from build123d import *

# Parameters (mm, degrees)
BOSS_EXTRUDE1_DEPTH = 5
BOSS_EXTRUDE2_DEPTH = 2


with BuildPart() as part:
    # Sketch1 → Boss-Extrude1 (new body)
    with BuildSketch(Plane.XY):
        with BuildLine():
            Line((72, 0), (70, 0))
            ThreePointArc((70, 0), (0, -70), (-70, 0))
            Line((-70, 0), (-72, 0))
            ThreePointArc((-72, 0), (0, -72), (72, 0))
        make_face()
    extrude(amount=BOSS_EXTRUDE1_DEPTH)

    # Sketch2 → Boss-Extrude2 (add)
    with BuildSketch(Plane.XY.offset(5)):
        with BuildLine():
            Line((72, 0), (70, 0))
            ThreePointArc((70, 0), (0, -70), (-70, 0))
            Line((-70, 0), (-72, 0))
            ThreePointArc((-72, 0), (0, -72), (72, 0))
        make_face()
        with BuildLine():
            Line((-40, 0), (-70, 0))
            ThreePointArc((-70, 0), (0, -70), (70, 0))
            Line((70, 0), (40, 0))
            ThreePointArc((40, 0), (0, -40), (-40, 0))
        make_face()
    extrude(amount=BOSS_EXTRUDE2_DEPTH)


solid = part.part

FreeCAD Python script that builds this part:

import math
import FreeCAD as App
import Part
import Sketcher
from FreeCAD import Vector

doc = App.newDocument("Part")
params = doc.addObject("Spreadsheet::Sheet", "Params")
for row, (alias, value) in enumerate([
    ("sketch1_radius", "70 mm"),
    ("sketch1_radius2", "72 mm"),
    ("pad1_length", "5 mm"),
    ("sketch2_radius", "40 mm"),
    ("sketch2_radius2", "72 mm"),
    ("pad2_length", "2 mm"),
], start=1):
    params.set(f"A{row}", alias)
    params.set(f"B{row}", "=" + value)
    params.setAlias(f"B{row}", alias)

body = doc.addObject("PartDesign::Body", "Body")

# Sketch on XY plane
sketch1 = body.newObject("Sketcher::SketchObject", "Sketch")
sketch1.AttachmentSupport = (doc.getObject("XY_Plane"), [""])
sketch1.MapMode = "FlatFace"
sketch1.addGeometry(Part.LineSegment(Vector(72, 0, 0), Vector(70, 0, 0)), False)
sketch1.addGeometry(Part.ArcOfCircle(Part.Circle(Vector(0, 0, 0), Vector(0, 0, 1), 70), math.radians(180), math.radians(360)), False)
sketch1.addGeometry(Part.LineSegment(Vector(-70, 0, 0), Vector(-72, 0, 0)), False)
sketch1.addGeometry(Part.ArcOfCircle(Part.Circle(Vector(0, 0, 0), Vector(0, 0, 1), 72), math.radians(180), math.radians(360)), False)
sketch1.addConstraint(Sketcher.Constraint("Coincident", 0, 2, 1, 2))
sketch1.addConstraint(Sketcher.Constraint("Coincident", 1, 1, 2, 1))
sketch1.addConstraint(Sketcher.Constraint("Coincident", 2, 2, 3, 1))
sketch1.addConstraint(Sketcher.Constraint("Coincident", 3, 2, 0, 1))
sketch1.addConstraint(Sketcher.Constraint("Horizontal", 0))
sketch1.addConstraint(Sketcher.Constraint("Horizontal", 2))
sketch1.addConstraint(Sketcher.Constraint("Coincident", 1, 3, -1, 1))
sketch1.addConstraint(Sketcher.Constraint("Coincident", 3, 3, -1, 1))
sketch1.addConstraint(Sketcher.Constraint("PointOnObject", 0, 2, -1))
sketch1.addConstraint(Sketcher.Constraint("PointOnObject", 1, 1, -1))
sketch1.addConstraint(Sketcher.Constraint("Radius", 1, 70.0))
sketch1.addConstraint(Sketcher.Constraint("Radius", 3, 72.0))
sketch1.setExpression("Constraints[10]", "Params.sketch1_radius")
sketch1.setExpression("Constraints[11]", "Params.sketch1_radius2")
pad1 = body.newObject("PartDesign::Pad", "Pad")
pad1.Profile = sketch1
pad1.setExpression("Length", "Params.pad1_length")

# Sketch on XY plane
sketch2 = body.newObject("Sketcher::SketchObject", "Sketch001")
sketch2.AttachmentSupport = (doc.getObject("XY_Plane"), [""])
sketch2.MapMode = "FlatFace"
sketch2.AttachmentOffset = App.Placement(Vector(0, 0, 5), App.Rotation())
sketch2.addGeometry(Part.LineSegment(Vector(72, 0, 0), Vector(40, 0, 0)), False)
sketch2.addGeometry(Part.ArcOfCircle(Part.Circle(Vector(0, 0, 0), Vector(0, 0, 1), 40), math.radians(180), math.radians(360)), False)
sketch2.addGeometry(Part.LineSegment(Vector(-40, 0, 0), Vector(-72, 0, 0)), False)
sketch2.addGeometry(Part.ArcOfCircle(Part.Circle(Vector(0, 0, 0), Vector(0, 0, 1), 72), math.radians(180), math.radians(360)), False)
sketch2.addConstraint(Sketcher.Constraint("Coincident", 0, 2, 1, 2))
sketch2.addConstraint(Sketcher.Constraint("Coincident", 1, 1, 2, 1))
sketch2.addConstraint(Sketcher.Constraint("Coincident", 2, 2, 3, 1))
sketch2.addConstraint(Sketcher.Constraint("Coincident", 3, 2, 0, 1))
sketch2.addConstraint(Sketcher.Constraint("Horizontal", 0))
sketch2.addConstraint(Sketcher.Constraint("Horizontal", 2))
sketch2.addConstraint(Sketcher.Constraint("Coincident", 1, 3, -1, 1))
sketch2.addConstraint(Sketcher.Constraint("Coincident", 3, 3, -1, 1))
sketch2.addConstraint(Sketcher.Constraint("PointOnObject", 0, 2, -1))
sketch2.addConstraint(Sketcher.Constraint("PointOnObject", 1, 1, -1))
sketch2.addConstraint(Sketcher.Constraint("Radius", 1, 40.0))
sketch2.addConstraint(Sketcher.Constraint("Radius", 3, 72.0))
sketch2.setExpression("Constraints[10]", "Params.sketch2_radius")
sketch2.setExpression("Constraints[11]", "Params.sketch2_radius2")
pad2 = body.newObject("PartDesign::Pad", "Pad001")
pad2.Profile = sketch2
pad2.setExpression("Length", "Params.pad2_length")

doc.recompute()
